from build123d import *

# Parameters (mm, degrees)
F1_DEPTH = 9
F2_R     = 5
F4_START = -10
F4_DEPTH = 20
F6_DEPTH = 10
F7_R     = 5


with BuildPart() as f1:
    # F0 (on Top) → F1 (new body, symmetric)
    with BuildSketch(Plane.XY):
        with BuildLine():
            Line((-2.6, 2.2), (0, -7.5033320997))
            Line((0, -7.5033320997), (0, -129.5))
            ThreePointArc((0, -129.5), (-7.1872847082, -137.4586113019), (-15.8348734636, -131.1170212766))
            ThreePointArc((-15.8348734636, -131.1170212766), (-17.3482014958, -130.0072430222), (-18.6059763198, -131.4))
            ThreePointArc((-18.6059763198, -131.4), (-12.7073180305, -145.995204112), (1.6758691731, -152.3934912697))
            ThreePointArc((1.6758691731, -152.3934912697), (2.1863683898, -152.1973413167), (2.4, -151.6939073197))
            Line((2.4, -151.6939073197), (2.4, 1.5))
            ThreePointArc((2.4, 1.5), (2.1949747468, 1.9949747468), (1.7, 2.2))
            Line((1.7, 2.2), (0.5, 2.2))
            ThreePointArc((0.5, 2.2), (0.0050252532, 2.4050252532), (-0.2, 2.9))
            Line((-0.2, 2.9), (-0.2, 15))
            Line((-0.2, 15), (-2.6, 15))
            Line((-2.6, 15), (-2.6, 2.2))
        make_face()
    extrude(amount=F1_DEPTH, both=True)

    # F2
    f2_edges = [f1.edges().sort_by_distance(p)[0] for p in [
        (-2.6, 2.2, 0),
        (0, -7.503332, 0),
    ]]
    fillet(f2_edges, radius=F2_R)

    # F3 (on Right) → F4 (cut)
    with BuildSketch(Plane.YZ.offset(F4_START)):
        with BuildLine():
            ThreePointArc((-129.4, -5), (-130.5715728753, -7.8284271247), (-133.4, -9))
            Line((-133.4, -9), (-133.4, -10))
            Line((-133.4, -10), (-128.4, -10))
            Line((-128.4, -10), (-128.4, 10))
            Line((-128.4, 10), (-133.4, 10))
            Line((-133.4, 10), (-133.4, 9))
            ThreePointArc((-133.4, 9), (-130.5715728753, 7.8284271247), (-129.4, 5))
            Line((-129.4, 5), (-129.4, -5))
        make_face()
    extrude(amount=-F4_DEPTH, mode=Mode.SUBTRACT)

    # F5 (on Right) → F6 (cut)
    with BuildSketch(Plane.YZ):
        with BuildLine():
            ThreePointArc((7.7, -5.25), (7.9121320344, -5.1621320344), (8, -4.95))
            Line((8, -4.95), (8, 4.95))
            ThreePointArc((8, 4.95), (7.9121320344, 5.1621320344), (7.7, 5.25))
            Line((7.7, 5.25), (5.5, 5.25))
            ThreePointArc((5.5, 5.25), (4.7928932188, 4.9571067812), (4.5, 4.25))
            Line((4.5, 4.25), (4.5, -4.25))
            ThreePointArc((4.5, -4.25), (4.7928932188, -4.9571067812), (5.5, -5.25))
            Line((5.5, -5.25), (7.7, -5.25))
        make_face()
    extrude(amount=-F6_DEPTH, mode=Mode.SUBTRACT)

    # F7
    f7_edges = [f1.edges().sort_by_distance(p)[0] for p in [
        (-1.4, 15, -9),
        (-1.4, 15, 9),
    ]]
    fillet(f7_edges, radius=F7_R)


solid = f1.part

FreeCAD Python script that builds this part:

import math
import FreeCAD as App
import Part
import Sketcher
from FreeCAD import Vector
Q = App.Units.Quantity


def edges_at(feature, points):
    """Names of the edges that pass closest to the given points."""
    edges = feature.Shape.Edges
    near = lambda p: min(range(len(edges)), key=lambda i: edges[i].distToShape(Part.Vertex(*p))[0])
    return sorted({f"Edge{near(p) + 1}" for p in points})

doc = App.newDocument("Part")
body = doc.addObject("PartDesign::Body", "Body")

# Sketch on XY plane
sketch1 = body.newObject("Sketcher::SketchObject", "Sketch")
sketch1.AttachmentSupport = (doc.getObject("XY_Plane"), [""])
sketch1.MapMode = "FlatFace"
sketch1.addGeometry([
    Part.LineSegment(Vector(-2.6, 2.2, 0), Vector(0, -7.5, 0)),  # 0
    Part.LineSegment(Vector(0, -7.5, 0), Vector(0, -129.5, 0)),  # 1
    Part.ArcOfCircle(Part.Circle(Vector(-8, -129.5, 0), Vector(0, 0, 1), 8), math.radians(-168), math.radians(0)),  # 2
    Part.ArcOfCircle(Part.Circle(Vector(-17.2, -131.4, 0), Vector(0, 0, 1), 1.4), math.radians(12), math.radians(180)),  # 3
    Part.ArcOfCircle(Part.Circle(Vector(2.4, -131.4, 0), Vector(0, 0, 1), 21), math.radians(180), math.radians(268)),  # 4
    Part.ArcOfCircle(Part.Circle(Vector(1.7, -151.7, 0), Vector(0, 0, 1), 0.7), math.radians(-92), math.radians(0)),  # 5
    Part.LineSegment(Vector(2.4, -151.7, 0), Vector(2.4, 1.5, 0)),  # 6
    Part.ArcOfCircle(Part.Circle(Vector(1.7, 1.5, 0), Vector(0, 0, 1), 0.7), math.radians(0), math.radians(90)),  # 7
    Part.LineSegment(Vector(1.7, 2.2, 0), Vector(0.5, 2.2, 0)),  # 8
    Part.ArcOfCircle(Part.Circle(Vector(0.5, 2.9, 0), Vector(0, 0, 1), 0.7), math.radians(180), math.radians(270)),  # 9
    Part.LineSegment(Vector(-0.2, 2.9, 0), Vector(-0.2, 15, 0)),  # 10
    Part.LineSegment(Vector(-0.2, 15, 0), Vector(-2.6, 15, 0)),  # 11
    Part.LineSegment(Vector(-2.6, 15, 0), Vector(-2.6, 2.2, 0)),  # 12
], False)
sketch1.addConstraint([
    Sketcher.Constraint("Coincident", 0, 2, 1, 1),
    Sketcher.Constraint("Tangent", 1, 2, 2, 2),
    Sketcher.Constraint("Tangent", 2, 1, 3, 1),
    Sketcher.Constraint("Tangent", 3, 2, 4, 1),
    Sketcher.Constraint("Tangent", 4, 2, 5, 1),
    Sketcher.Constraint("Tangent", 5, 2, 6, 1),
    Sketcher.Constraint("Tangent", 6, 2, 7, 1),
    Sketcher.Constraint("Tangent", 7, 2, 8, 1),
    Sketcher.Constraint("Tangent", 8, 2, 9, 2),
    Sketcher.Constraint("Tangent", 9, 1, 10, 1),
    Sketcher.Constraint("Coincident", 10, 2, 11, 1),
    Sketcher.Constraint("Coincident", 11, 2, 12, 1),
    Sketcher.Constraint("Coincident", 12, 2, 0, 1),
    Sketcher.Constraint("Vertical", 1),
    Sketcher.Constraint("Vertical", 6),
    Sketcher.Constraint("Horizontal", 8),
    Sketcher.Constraint("Vertical", 10),
    Sketcher.Constraint("Horizontal", 11),
    Sketcher.Constraint("Vertical", 12),
    Sketcher.Constraint("Equal", 5, 7),
    Sketcher.Constraint("Equal", 7, 9),
    Sketcher.Constraint("PointOnObject", 0, 2, -2),
    Sketcher.Constraint("Horizontal", 3, 3, 4, 3),
    Sketcher.Constraint("Horizontal", 8, 2, 12, 2),
    Sketcher.Constraint("Vertical", 4, 3, 5, 2),
    Sketcher.Constraint("Radius", 2, 8.0),
    Sketcher.Constraint("Radius", 3, 1.4),
    Sketcher.Constraint("Radius", 5, 0.7),
    Sketcher.Constraint("Angle", 0, Q("-75 deg")),
    Sketcher.Constraint("DistanceX", 8, 2, 8, 1, 1.2),
    Sketcher.Constraint("DistanceX", 11, 2, 11, 1, 2.4),
    Sketcher.Constraint("DistanceY", 10, 1, 10, 2, 12.1),
    Sketcher.Constraint("DistanceY", -1, 1, 10, 2, 15.0),
    Sketcher.Constraint("DistanceY", 2, 3, 7, 3, 131.0),
    Sketcher.Constraint("DistanceY", 3, 3, -1, 1, 131.4),
    Sketcher.Constraint("DistanceX", -1, 1, 4, 3, 2.4),
])
pad1 = body.newObject("PartDesign::Pad", "Pad")
pad1.Profile = sketch1
pad1.Length = 18
pad1.Midplane = True
doc.recompute()

fillet = body.newObject("PartDesign::Fillet", "Fillet")
fillet.Base = (pad1, edges_at(pad1, [(-2.6, 2.2, 0), (0, -7.503, 0)]))
fillet.Radius = 5

# Sketch on YZ plane
sketch2 = body.newObject("Sketcher::SketchObject", "Sketch001")
sketch2.AttachmentSupport = (doc.getObject("YZ_Plane"), [""])
sketch2.MapMode = "FlatFace"
sketch2.AttachmentOffset = App.Placement(Vector(0, 0, -10), App.Rotation())
sketch2.addGeometry([
    Part.ArcOfCircle(Part.Circle(Vector(-133.4, -5, 0), Vector(0, 0, 1), 4), math.radians(-90), math.radians(0)),  # 0
    Part.LineSegment(Vector(-133.4, -9, 0), Vector(-133.4, -10, 0)),  # 1
    Part.LineSegment(Vector(-133.4, -10, 0), Vector(-128.4, -10, 0)),  # 2
    Part.LineSegment(Vector(-128.4, -10, 0), Vector(-128.4, 10, 0)),  # 3
    Part.LineSegment(Vector(-128.4, 10, 0), Vector(-133.4, 10, 0)),  # 4
    Part.LineSegment(Vector(-133.4, 10, 0), Vector(-133.4, 9, 0)),  # 5
    Part.ArcOfCircle(Part.Circle(Vector(-133.4, 5, 0), Vector(0, 0, 1), 4), math.radians(0), math.radians(90)),  # 6
    Part.LineSegment(Vector(-129.4, 5, 0), Vector(-129.4, -5, 0)),  # 7
], False)
sketch2.addConstraint([
    Sketcher.Constraint("Coincident", 0, 1, 1, 1),
    Sketcher.Constraint("Coincident", 1, 2, 2, 1),
    Sketcher.Constraint("Coincident", 2, 2, 3, 1),
    Sketcher.Constraint("Coincident", 3, 2, 4, 1),
    Sketcher.Constraint("Coincident", 4, 2, 5, 1),
    Sketcher.Constraint("Coincident", 5, 2, 6, 2),
    Sketcher.Constraint("Tangent", 6, 1, 7, 1),
    Sketcher.Constraint("Tangent", 7, 2, 0, 2),
    Sketcher.Constraint("Vertical", 1),
    Sketcher.Constraint("Horizontal", 2),
    Sketcher.Constraint("Vertical", 3),
    Sketcher.Constraint("Horizontal", 4),
    Sketcher.Constraint("Vertical", 5),
    Sketcher.Constraint("Vertical", 7),
    Sketcher.Constraint("Equal", 0, 6),
    Sketcher.Constraint("Symmetric", 1, 2, 4, 2, -1),
    Sketcher.Constraint("Vertical", 6, 3, 0, 1),
    Sketcher.Constraint("Equal", 1, 5),
    Sketcher.Constraint("Radius", 0, 4.0),
    Sketcher.Constraint("DistanceX", 2, 1, 2, 2, 5.0),
    Sketcher.Constraint("DistanceY", 1, 2, 1, 1, 1.0),
    Sketcher.Constraint("DistanceY", 3, 1, 3, 2, 20.0),
    Sketcher.Constraint("DistanceX", 0, 3, -1, 1, 133.4),
])
pocket1 = body.newObject("PartDesign::Pocket", "Pocket")
pocket1.Profile = sketch2
pocket1.Length = 20

# Sketch on YZ plane
sketch3 = body.newObject("Sketcher::SketchObject", "Sketch002")
sketch3.AttachmentSupport = (doc.getObject("YZ_Plane"), [""])
sketch3.MapMode = "FlatFace"
sketch3.addGeometry([
    Part.ArcOfCircle(Part.Circle(Vector(7.7, -4.95, 0), Vector(0, 0, 1), 0.3), math.radians(-90), math.radians(0)),  # 0
    Part.LineSegment(Vector(8, -4.95, 0), Vector(8, 4.95, 0)),  # 1
    Part.ArcOfCircle(Part.Circle(Vector(7.7, 4.95, 0), Vector(0, 0, 1), 0.3), math.radians(0), math.radians(90)),  # 2
    Part.LineSegment(Vector(7.7, 5.25, 0), Vector(5.5, 5.25, 0)),  # 3
    Part.ArcOfCircle(Part.Circle(Vector(5.5, 4.25, 0), Vector(0, 0, 1), 1), math.radians(90), math.radians(180)),  # 4
    Part.LineSegment(Vector(4.5, 4.25, 0), Vector(4.5, -4.25, 0)),  # 5
    Part.ArcOfCircle(Part.Circle(Vector(5.5, -4.25, 0), Vector(0, 0, 1), 1), math.radians(180), math.radians(270)),  # 6
    Part.LineSegment(Vector(5.5, -5.25, 0), Vector(7.7, -5.25, 0)),  # 7
], False)
sketch3.addConstraint([
    Sketcher.Constraint("Tangent", 0, 2, 1, 1),
    Sketcher.Constraint("Tangent", 1, 2, 2, 1),
    Sketcher.Constraint("Tangent", 2, 2, 3, 1),
    Sketcher.Constraint("Tangent", 3, 2, 4, 1),
    Sketcher.Constraint("Tangent", 4, 2, 5, 1),
    Sketcher.Constraint("Tangent", 5, 2, 6, 1),
    Sketcher.Constraint("Tangent", 6, 2, 7, 1),
    Sketcher.Constraint("Tangent", 7, 2, 0, 1),
    Sketcher.Constraint("Vertical", 1),
    Sketcher.Constraint("Horizontal", 3),
    Sketcher.Constraint("Vertical", 5),
    Sketcher.Constraint("Horizontal", 7),
    Sketcher.Constraint("Equal", 0, 2),
    Sketcher.Constraint("Equal", 4, 6),
    Sketcher.Constraint("Radius", 4, 1.0),
    Sketcher.Constraint("Radius", 0, 0.3),
    Sketcher.Constraint("DistanceX", 3, 2, 3, 1, 2.2),
    Sketcher.Constraint("DistanceY", 1, 1, 1, 2, 9.9),
    Sketcher.Constraint("DistanceX", -1, 1, 0, 2, 8.0),
    Sketcher.Constraint("DistanceY", 0, 3, -1, 1, 4.95),
])
pocket2 = body.newObject("PartDesign::Pocket", "Pocket001")
pocket2.Profile = sketch3
pocket2.Length = 10
doc.recompute()

fillet2 = body.newObject("PartDesign::Fillet", "Fillet001")
fillet2.Base = (pocket2, edges_at(pocket2, [(-1.4, 15, -9), (-1.4, 15, 9)]))
fillet2.Radius = 5

doc.recompute()
